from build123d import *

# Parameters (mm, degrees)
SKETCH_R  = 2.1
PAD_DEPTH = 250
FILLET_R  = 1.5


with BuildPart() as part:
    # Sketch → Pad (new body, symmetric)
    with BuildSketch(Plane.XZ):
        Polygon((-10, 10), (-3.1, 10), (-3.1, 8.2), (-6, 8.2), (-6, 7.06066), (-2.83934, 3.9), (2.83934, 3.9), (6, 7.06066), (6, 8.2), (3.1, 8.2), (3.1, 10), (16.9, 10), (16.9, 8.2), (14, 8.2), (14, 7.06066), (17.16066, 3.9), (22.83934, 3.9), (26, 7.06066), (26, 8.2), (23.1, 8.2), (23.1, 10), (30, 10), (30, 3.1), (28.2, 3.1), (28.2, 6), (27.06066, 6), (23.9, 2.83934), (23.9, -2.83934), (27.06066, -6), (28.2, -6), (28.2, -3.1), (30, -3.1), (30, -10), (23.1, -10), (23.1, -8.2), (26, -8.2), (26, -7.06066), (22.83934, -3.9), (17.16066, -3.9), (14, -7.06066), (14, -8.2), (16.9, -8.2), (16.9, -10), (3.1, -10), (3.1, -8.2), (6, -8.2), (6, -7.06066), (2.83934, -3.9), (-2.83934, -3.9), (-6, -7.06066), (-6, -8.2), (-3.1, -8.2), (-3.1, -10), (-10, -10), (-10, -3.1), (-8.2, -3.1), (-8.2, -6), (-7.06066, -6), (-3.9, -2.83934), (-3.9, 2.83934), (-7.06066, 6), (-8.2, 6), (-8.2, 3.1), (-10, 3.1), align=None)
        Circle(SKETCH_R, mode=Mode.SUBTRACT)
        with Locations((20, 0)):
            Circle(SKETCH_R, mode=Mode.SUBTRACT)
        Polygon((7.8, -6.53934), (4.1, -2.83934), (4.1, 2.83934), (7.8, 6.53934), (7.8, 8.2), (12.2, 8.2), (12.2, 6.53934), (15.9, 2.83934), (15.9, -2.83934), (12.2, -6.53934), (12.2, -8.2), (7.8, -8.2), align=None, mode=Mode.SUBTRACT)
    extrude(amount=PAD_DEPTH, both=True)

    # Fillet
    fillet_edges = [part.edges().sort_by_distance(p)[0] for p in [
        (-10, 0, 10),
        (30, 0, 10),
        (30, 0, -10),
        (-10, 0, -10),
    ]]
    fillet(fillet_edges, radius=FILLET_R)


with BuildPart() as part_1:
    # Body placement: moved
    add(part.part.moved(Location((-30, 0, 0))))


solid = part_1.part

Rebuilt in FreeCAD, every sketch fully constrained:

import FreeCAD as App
import Part
import Sketcher

V = App.Vector
Q = App.Units.Quantity


def edges_at(feature, points):
    """Names of the edges that pass closest to the given points."""
    edges = feature.Shape.Edges
    near = lambda p: min(range(len(edges)), key=lambda i: edges[i].distToShape(Part.Vertex(*p))[0])
    return sorted({f"Edge{near(p) + 1}" for p in points})


def add_polygon(sketch, points):
    """Adds a closed chain of lines whose ends are joined by coincident constraints."""
    first, n = sketch.GeometryCount, len(points)
    for a, b in zip(points, points[1:] + points[:1]):
        sketch.addGeometry(Part.LineSegment(App.Vector(*a, 0), App.Vector(*b, 0)), False)
    for i in range(n):
        sketch.addConstraint(Sketcher.Constraint("Coincident", first + i, 2, first + (i + 1) % n, 1))

doc = App.newDocument("Part")
body = doc.addObject("PartDesign::Body", "Body")

sketch1 = doc.addObject("Sketcher::SketchObject", "Sketch")
body.addObject(sketch1)
sketch1.AttachmentSupport = (doc.XZ_Plane, [""])
sketch1.MapMode = "FlatFace"
add_polygon(sketch1, [(-3.1, 10), (-10, 10), (-10, 3.1), (-8.2, 3.1), (-8.2, 6), (-7.06066, 6), (-3.9, 2.83934), (-3.9, -2.83934), (-7.06066, -6), (-8.2, -6), (-8.2, -3.1), (-10, -3.1), (-10, -10), (-3.1, -10), (-3.1, -8.2), (-6, -8.2), (-6, -7.06066), (-2.83934, -3.9), (2.83934, -3.9), (6, -7.06066), (6, -8.2), (3.1, -8.2), (3.1, -10), (16.9, -10), (16.9, -8.2), (14, -8.2), (14, -7.06066), (17.16066, -3.9), (22.83934, -3.9), (26, -7.06066), (26, -8.2), (23.1, -8.2), (23.1, -10), (30, -10), (30, -3.1), (28.2, -3.1), (28.2, -6), (27.06066, -6), (23.9, -2.83934), (23.9, 2.83934), (27.06066, 6), (28.2, 6), (28.2, 3.1), (30, 3.1), (30, 10), (23.1, 10), (23.1, 8.2), (26, 8.2), (26, 7.06066), (22.83934, 3.9), (17.16066, 3.9), (14, 7.06066), (14, 8.2), (16.9, 8.2), (16.9, 10), (3.1, 10), (3.1, 8.2), (6, 8.2), (6, 7.06066), (2.83934, 3.9), (-2.83934, 3.9), (-6, 7.06066), (-6, 8.2), (-3.1, 8.2)])
sketch1.addGeometry(Part.Circle(V(20, 0, 0), V(0, 0, 1), 2.1), False)
add_polygon(sketch1, [(7.8, -6.53934), (4.1, -2.83934), (4.1, 2.83934), (7.8, 6.53934), (7.8, 8.2), (12.2, 8.2), (12.2, 6.53934), (15.9, 2.83934), (15.9, -2.83934), (12.2, -6.53934), (12.2, -8.2), (7.8, -8.2)])
sketch1.addGeometry(Part.Circle(V(0, 0, 0), V(0, 0, 1), 2.1), False)
sketch1.addConstraint([
    Sketcher.Constraint("Horizontal", 0),
    Sketcher.Constraint("Vertical", 1),
    Sketcher.Constraint("Horizontal", 2),
    Sketcher.Constraint("Vertical", 3),
    Sketcher.Constraint("Horizontal", 4),
    Sketcher.Constraint("Vertical", 6),
    Sketcher.Constraint("Horizontal", 8),
    Sketcher.Constraint("Vertical", 9),
    Sketcher.Constraint("Horizontal", 10),
    Sketcher.Constraint("Vertical", 11),
    Sketcher.Constraint("Horizontal", 12),
    Sketcher.Constraint("Vertical", 13),
    Sketcher.Constraint("Horizontal", 14),
    Sketcher.Constraint("Vertical", 15),
    Sketcher.Constraint("Horizontal", 17),
    Sketcher.Constraint("Vertical", 19),
    Sketcher.Constraint("Horizontal", 20),
    Sketcher.Constraint("Vertical", 21),
    Sketcher.Constraint("Horizontal", 22),
    Sketcher.Constraint("Vertical", 23),
    Sketcher.Constraint("Horizontal", 24),
    Sketcher.Constraint("Vertical", 25),
    Sketcher.Constraint("Horizontal", 27),
    Sketcher.Constraint("Vertical", 29),
    Sketcher.Constraint("Horizontal", 30),
    Sketcher.Constraint("Vertical", 31),
    Sketcher.Constraint("Horizontal", 32),
    Sketcher.Constraint("Vertical", 33),
    Sketcher.Constraint("Horizontal", 34),
    Sketcher.Constraint("Vertical", 35),
    Sketcher.Constraint("Horizontal", 36),
    Sketcher.Constraint("Vertical", 38),
    Sketcher.Constraint("Horizontal", 40),
    Sketcher.Constraint("Vertical", 41),
    Sketcher.Constraint("Horizontal", 42),
    Sketcher.Constraint("Vertical", 43),
    Sketcher.Constraint("Horizontal", 44),
    Sketcher.Constraint("Vertical", 45),
    Sketcher.Constraint("Horizontal", 46),
    Sketcher.Constraint("Vertical", 47),
    Sketcher.Constraint("Horizontal", 49),
    Sketcher.Constraint("Vertical", 51),
    Sketcher.Constraint("Horizontal", 52),
    Sketcher.Constraint("Vertical", 53),
    Sketcher.Constraint("Horizontal", 54),
    Sketcher.Constraint("Vertical", 55),
    Sketcher.Constraint("Horizontal", 56),
    Sketcher.Constraint("Vertical", 57),
    Sketcher.Constraint("Horizontal", 59),
    Sketcher.Constraint("Vertical", 61),
    Sketcher.Constraint("Horizontal", 62),
    Sketcher.Constraint("Vertical", 63),
    Sketcher.Constraint("Vertical", 66),
    Sketcher.Constraint("Vertical", 68),
    Sketcher.Constraint("Horizontal", 69),
    Sketcher.Constraint("Vertical", 70),
    Sketcher.Constraint("Vertical", 72),
    Sketcher.Constraint("Vertical", 74),
    Sketcher.Constraint("Horizontal", 75),
    Sketcher.Constraint("Vertical", 76),
    Sketcher.Constraint("Coincident", 77, 3, -1, 1),
    Sketcher.Constraint("Equal", 64, 77),
    Sketcher.Constraint("Symmetric", 12, 2, 54, 2, -1, 1),
    Sketcher.Constraint("Symmetric", 14, 2, 56, 2, -1, 1),
    Sketcher.Constraint("Symmetric", 16, 2, 58, 2, -1, 1),
    Sketcher.Constraint("Symmetric", 18, 2, 60, 2, -1, 1),
    Sketcher.Constraint("Symmetric", 20, 2, 62, 2, -1, 1),
    Sketcher.Constraint("Symmetric", 15, 2, 18, 2, -2),
    Sketcher.Constraint("Symmetric", 13, 2, 20, 2, -2),
    Sketcher.Constraint("Symmetric", 4, 2, 7, 2, -1),
    Sketcher.Constraint("Symmetric", 2, 2, 9, 2, -1),
    Sketcher.Constraint("Symmetric", 0, 2, 11, 2, -1),
    Sketcher.Constraint("Symmetric", 36, 2, 39, 2, -1),
    Sketcher.Constraint("Symmetric", 34, 2, 41, 2, -1),
    Sketcher.Constraint("Symmetric", 32, 2, 43, 2, -1),
    Sketcher.Constraint("Symmetric", 30, 2, 45, 2, -1),
    Sketcher.Constraint("Symmetric", 28, 2, 47, 2, -1),
    Sketcher.Constraint("Symmetric", 27, 2, 48, 2, -1),
    Sketcher.Constraint("Symmetric", 25, 2, 50, 2, -1),
    Sketcher.Constraint("Symmetric", 23, 2, 52, 2, -1),
    Sketcher.Constraint("Symmetric", 70, 2, 73, 2, -1),
    Sketcher.Constraint("Symmetric", 68, 2, 75, 2, -1),
    Sketcher.Constraint("PointOnObject", 64, 3, -1),
    Sketcher.Constraint("Perpendicular", 5, 7),
    Sketcher.Constraint("Parallel", 7, 16),
    Sketcher.Constraint("Perpendicular", 16, 18),
    Sketcher.Constraint("Perpendicular", 18, 26),
    Sketcher.Constraint("Perpendicular", 26, 28),
    Sketcher.Constraint("Parallel", 28, 37),
    Sketcher.Constraint("Perpendicular", 37, 39),
    Sketcher.Constraint("Parallel", 39, 48),
    Sketcher.Constraint("Perpendicular", 48, 50),
    Sketcher.Constraint("Perpendicular", 50, 58),
    Sketcher.Constraint("Perpendicular", 58, 60),
    Sketcher.Constraint("Parallel", 60, 65),
    Sketcher.Constraint("Perpendicular", 65, 67),
    Sketcher.Constraint("Perpendicular", 67, 71),
    Sketcher.Constraint("Perpendicular", 71, 73),
    Sketcher.Constraint("Horizontal", 12, 2, 21, 2),
    Sketcher.Constraint("Horizontal", 20, 2, 23, 2),
    Sketcher.Constraint("Horizontal", 18, 2, 25, 2),
    Sketcher.Constraint("Horizontal", 17, 2, 26, 2),
    Sketcher.Constraint("Horizontal", 25, 2, 28, 2),
    Sketcher.Constraint("Horizontal", 24, 2, 29, 2),
    Sketcher.Constraint("Horizontal", 22, 2, 31, 2),
    Sketcher.Constraint("Horizontal", 10, 2, 33, 2),
    Sketcher.Constraint("Horizontal", 8, 2, 35, 2),
    Sketcher.Constraint("Horizontal", 6, 2, 37, 2),
    Sketcher.Constraint("Horizontal", 37, 2, 65, 2),
    Sketcher.Constraint("Horizontal", 38, 2, 66, 2),
    Sketcher.Constraint("Horizontal", 62, 2, 68, 2),
    Sketcher.Constraint("Horizontal", 67, 2, 70, 2),
    Sketcher.Constraint("Horizontal", 66, 2, 71, 2),
    Sketcher.Constraint("Equal", 20, 24),
    Sketcher.Constraint("Equal", 17, 27),
    Sketcher.Constraint("Equal", 24, 30),
    Sketcher.Constraint("Equal", 12, 32),
    Sketcher.Constraint("Equal", 10, 34),
    Sketcher.Constraint("Equal", 8, 36),
    Sketcher.Constraint("Equal", 44, 1),
    Sketcher.Constraint("Equal", 62, 3),
    Sketcher.Constraint("Equal", 59, 6),
    Sketcher.Constraint("Equal", 42, 13),
    Sketcher.Constraint("Equal", 40, 15),
    Sketcher.Constraint("Equal", 7, 16),
    Sketcher.Constraint("Diameter", 64, Q("4.2 mm")),
    Sketcher.Constraint("DistanceX", 0, 2, 0, 1, Q("6.9 mm")),
    Sketcher.Constraint("DistanceX", 2, 1, 2, 2, Q("1.8 mm")),
    Sketcher.Constraint("DistanceX", 14, 2, 14, 1, Q("2.9 mm")),
    Sketcher.Constraint("DistanceX", 22, 1, 22, 2, Q("13.8 mm")),
    Sketcher.Constraint("DistanceX", 69, 1, 69, 2, Q("4.4 mm")),
    Sketcher.Constraint("DistanceX", -1, 1, 64, 3, Q("20 mm")),
    Sketcher.Constraint("DistanceX", 0, 2, -1, 1, Q("10 mm")),
    Sketcher.Constraint("DistanceX", 5, 2, -1, 1, Q("3.9 mm")),
    Sketcher.Constraint("DistanceX", -1, 1, 65, 2, Q("4.1 mm")),
    Sketcher.Constraint("DistanceX", -1, 1, 67, 2, Q("7.8 mm")),
    Sketcher.Constraint("DistanceX", 4, 1, 4, 2, Q("1.13934 mm")),
])
pad1 = doc.addObject("PartDesign::Pad", "Pad")
body.addObject(pad1)
pad1.Profile = sketch1
pad1.Length = 500
pad1.Midplane = True
doc.recompute()

fillet = doc.addObject("PartDesign::Fillet", "Fillet")
body.addObject(fillet)
fillet.Base = (pad1, edges_at(pad1, [
    (-10, 0, 10),
    (30, 0, 10),
    (30, 0, -10),
    (-10, 0, -10),
]))
fillet.Radius = 1.5
body2 = doc.addObject("PartDesign::Body", "Body001")
doc.recompute()

body.Placement = App.Placement(V(-30, 0, 0), App.Rotation(V(0, 0, 1), 0))
boolean = doc.addObject("PartDesign::Boolean", "Boolean")
body2.addObject(boolean)
boolean.Type = "Fuse"
boolean.addObjects([body])

doc.recompute()
